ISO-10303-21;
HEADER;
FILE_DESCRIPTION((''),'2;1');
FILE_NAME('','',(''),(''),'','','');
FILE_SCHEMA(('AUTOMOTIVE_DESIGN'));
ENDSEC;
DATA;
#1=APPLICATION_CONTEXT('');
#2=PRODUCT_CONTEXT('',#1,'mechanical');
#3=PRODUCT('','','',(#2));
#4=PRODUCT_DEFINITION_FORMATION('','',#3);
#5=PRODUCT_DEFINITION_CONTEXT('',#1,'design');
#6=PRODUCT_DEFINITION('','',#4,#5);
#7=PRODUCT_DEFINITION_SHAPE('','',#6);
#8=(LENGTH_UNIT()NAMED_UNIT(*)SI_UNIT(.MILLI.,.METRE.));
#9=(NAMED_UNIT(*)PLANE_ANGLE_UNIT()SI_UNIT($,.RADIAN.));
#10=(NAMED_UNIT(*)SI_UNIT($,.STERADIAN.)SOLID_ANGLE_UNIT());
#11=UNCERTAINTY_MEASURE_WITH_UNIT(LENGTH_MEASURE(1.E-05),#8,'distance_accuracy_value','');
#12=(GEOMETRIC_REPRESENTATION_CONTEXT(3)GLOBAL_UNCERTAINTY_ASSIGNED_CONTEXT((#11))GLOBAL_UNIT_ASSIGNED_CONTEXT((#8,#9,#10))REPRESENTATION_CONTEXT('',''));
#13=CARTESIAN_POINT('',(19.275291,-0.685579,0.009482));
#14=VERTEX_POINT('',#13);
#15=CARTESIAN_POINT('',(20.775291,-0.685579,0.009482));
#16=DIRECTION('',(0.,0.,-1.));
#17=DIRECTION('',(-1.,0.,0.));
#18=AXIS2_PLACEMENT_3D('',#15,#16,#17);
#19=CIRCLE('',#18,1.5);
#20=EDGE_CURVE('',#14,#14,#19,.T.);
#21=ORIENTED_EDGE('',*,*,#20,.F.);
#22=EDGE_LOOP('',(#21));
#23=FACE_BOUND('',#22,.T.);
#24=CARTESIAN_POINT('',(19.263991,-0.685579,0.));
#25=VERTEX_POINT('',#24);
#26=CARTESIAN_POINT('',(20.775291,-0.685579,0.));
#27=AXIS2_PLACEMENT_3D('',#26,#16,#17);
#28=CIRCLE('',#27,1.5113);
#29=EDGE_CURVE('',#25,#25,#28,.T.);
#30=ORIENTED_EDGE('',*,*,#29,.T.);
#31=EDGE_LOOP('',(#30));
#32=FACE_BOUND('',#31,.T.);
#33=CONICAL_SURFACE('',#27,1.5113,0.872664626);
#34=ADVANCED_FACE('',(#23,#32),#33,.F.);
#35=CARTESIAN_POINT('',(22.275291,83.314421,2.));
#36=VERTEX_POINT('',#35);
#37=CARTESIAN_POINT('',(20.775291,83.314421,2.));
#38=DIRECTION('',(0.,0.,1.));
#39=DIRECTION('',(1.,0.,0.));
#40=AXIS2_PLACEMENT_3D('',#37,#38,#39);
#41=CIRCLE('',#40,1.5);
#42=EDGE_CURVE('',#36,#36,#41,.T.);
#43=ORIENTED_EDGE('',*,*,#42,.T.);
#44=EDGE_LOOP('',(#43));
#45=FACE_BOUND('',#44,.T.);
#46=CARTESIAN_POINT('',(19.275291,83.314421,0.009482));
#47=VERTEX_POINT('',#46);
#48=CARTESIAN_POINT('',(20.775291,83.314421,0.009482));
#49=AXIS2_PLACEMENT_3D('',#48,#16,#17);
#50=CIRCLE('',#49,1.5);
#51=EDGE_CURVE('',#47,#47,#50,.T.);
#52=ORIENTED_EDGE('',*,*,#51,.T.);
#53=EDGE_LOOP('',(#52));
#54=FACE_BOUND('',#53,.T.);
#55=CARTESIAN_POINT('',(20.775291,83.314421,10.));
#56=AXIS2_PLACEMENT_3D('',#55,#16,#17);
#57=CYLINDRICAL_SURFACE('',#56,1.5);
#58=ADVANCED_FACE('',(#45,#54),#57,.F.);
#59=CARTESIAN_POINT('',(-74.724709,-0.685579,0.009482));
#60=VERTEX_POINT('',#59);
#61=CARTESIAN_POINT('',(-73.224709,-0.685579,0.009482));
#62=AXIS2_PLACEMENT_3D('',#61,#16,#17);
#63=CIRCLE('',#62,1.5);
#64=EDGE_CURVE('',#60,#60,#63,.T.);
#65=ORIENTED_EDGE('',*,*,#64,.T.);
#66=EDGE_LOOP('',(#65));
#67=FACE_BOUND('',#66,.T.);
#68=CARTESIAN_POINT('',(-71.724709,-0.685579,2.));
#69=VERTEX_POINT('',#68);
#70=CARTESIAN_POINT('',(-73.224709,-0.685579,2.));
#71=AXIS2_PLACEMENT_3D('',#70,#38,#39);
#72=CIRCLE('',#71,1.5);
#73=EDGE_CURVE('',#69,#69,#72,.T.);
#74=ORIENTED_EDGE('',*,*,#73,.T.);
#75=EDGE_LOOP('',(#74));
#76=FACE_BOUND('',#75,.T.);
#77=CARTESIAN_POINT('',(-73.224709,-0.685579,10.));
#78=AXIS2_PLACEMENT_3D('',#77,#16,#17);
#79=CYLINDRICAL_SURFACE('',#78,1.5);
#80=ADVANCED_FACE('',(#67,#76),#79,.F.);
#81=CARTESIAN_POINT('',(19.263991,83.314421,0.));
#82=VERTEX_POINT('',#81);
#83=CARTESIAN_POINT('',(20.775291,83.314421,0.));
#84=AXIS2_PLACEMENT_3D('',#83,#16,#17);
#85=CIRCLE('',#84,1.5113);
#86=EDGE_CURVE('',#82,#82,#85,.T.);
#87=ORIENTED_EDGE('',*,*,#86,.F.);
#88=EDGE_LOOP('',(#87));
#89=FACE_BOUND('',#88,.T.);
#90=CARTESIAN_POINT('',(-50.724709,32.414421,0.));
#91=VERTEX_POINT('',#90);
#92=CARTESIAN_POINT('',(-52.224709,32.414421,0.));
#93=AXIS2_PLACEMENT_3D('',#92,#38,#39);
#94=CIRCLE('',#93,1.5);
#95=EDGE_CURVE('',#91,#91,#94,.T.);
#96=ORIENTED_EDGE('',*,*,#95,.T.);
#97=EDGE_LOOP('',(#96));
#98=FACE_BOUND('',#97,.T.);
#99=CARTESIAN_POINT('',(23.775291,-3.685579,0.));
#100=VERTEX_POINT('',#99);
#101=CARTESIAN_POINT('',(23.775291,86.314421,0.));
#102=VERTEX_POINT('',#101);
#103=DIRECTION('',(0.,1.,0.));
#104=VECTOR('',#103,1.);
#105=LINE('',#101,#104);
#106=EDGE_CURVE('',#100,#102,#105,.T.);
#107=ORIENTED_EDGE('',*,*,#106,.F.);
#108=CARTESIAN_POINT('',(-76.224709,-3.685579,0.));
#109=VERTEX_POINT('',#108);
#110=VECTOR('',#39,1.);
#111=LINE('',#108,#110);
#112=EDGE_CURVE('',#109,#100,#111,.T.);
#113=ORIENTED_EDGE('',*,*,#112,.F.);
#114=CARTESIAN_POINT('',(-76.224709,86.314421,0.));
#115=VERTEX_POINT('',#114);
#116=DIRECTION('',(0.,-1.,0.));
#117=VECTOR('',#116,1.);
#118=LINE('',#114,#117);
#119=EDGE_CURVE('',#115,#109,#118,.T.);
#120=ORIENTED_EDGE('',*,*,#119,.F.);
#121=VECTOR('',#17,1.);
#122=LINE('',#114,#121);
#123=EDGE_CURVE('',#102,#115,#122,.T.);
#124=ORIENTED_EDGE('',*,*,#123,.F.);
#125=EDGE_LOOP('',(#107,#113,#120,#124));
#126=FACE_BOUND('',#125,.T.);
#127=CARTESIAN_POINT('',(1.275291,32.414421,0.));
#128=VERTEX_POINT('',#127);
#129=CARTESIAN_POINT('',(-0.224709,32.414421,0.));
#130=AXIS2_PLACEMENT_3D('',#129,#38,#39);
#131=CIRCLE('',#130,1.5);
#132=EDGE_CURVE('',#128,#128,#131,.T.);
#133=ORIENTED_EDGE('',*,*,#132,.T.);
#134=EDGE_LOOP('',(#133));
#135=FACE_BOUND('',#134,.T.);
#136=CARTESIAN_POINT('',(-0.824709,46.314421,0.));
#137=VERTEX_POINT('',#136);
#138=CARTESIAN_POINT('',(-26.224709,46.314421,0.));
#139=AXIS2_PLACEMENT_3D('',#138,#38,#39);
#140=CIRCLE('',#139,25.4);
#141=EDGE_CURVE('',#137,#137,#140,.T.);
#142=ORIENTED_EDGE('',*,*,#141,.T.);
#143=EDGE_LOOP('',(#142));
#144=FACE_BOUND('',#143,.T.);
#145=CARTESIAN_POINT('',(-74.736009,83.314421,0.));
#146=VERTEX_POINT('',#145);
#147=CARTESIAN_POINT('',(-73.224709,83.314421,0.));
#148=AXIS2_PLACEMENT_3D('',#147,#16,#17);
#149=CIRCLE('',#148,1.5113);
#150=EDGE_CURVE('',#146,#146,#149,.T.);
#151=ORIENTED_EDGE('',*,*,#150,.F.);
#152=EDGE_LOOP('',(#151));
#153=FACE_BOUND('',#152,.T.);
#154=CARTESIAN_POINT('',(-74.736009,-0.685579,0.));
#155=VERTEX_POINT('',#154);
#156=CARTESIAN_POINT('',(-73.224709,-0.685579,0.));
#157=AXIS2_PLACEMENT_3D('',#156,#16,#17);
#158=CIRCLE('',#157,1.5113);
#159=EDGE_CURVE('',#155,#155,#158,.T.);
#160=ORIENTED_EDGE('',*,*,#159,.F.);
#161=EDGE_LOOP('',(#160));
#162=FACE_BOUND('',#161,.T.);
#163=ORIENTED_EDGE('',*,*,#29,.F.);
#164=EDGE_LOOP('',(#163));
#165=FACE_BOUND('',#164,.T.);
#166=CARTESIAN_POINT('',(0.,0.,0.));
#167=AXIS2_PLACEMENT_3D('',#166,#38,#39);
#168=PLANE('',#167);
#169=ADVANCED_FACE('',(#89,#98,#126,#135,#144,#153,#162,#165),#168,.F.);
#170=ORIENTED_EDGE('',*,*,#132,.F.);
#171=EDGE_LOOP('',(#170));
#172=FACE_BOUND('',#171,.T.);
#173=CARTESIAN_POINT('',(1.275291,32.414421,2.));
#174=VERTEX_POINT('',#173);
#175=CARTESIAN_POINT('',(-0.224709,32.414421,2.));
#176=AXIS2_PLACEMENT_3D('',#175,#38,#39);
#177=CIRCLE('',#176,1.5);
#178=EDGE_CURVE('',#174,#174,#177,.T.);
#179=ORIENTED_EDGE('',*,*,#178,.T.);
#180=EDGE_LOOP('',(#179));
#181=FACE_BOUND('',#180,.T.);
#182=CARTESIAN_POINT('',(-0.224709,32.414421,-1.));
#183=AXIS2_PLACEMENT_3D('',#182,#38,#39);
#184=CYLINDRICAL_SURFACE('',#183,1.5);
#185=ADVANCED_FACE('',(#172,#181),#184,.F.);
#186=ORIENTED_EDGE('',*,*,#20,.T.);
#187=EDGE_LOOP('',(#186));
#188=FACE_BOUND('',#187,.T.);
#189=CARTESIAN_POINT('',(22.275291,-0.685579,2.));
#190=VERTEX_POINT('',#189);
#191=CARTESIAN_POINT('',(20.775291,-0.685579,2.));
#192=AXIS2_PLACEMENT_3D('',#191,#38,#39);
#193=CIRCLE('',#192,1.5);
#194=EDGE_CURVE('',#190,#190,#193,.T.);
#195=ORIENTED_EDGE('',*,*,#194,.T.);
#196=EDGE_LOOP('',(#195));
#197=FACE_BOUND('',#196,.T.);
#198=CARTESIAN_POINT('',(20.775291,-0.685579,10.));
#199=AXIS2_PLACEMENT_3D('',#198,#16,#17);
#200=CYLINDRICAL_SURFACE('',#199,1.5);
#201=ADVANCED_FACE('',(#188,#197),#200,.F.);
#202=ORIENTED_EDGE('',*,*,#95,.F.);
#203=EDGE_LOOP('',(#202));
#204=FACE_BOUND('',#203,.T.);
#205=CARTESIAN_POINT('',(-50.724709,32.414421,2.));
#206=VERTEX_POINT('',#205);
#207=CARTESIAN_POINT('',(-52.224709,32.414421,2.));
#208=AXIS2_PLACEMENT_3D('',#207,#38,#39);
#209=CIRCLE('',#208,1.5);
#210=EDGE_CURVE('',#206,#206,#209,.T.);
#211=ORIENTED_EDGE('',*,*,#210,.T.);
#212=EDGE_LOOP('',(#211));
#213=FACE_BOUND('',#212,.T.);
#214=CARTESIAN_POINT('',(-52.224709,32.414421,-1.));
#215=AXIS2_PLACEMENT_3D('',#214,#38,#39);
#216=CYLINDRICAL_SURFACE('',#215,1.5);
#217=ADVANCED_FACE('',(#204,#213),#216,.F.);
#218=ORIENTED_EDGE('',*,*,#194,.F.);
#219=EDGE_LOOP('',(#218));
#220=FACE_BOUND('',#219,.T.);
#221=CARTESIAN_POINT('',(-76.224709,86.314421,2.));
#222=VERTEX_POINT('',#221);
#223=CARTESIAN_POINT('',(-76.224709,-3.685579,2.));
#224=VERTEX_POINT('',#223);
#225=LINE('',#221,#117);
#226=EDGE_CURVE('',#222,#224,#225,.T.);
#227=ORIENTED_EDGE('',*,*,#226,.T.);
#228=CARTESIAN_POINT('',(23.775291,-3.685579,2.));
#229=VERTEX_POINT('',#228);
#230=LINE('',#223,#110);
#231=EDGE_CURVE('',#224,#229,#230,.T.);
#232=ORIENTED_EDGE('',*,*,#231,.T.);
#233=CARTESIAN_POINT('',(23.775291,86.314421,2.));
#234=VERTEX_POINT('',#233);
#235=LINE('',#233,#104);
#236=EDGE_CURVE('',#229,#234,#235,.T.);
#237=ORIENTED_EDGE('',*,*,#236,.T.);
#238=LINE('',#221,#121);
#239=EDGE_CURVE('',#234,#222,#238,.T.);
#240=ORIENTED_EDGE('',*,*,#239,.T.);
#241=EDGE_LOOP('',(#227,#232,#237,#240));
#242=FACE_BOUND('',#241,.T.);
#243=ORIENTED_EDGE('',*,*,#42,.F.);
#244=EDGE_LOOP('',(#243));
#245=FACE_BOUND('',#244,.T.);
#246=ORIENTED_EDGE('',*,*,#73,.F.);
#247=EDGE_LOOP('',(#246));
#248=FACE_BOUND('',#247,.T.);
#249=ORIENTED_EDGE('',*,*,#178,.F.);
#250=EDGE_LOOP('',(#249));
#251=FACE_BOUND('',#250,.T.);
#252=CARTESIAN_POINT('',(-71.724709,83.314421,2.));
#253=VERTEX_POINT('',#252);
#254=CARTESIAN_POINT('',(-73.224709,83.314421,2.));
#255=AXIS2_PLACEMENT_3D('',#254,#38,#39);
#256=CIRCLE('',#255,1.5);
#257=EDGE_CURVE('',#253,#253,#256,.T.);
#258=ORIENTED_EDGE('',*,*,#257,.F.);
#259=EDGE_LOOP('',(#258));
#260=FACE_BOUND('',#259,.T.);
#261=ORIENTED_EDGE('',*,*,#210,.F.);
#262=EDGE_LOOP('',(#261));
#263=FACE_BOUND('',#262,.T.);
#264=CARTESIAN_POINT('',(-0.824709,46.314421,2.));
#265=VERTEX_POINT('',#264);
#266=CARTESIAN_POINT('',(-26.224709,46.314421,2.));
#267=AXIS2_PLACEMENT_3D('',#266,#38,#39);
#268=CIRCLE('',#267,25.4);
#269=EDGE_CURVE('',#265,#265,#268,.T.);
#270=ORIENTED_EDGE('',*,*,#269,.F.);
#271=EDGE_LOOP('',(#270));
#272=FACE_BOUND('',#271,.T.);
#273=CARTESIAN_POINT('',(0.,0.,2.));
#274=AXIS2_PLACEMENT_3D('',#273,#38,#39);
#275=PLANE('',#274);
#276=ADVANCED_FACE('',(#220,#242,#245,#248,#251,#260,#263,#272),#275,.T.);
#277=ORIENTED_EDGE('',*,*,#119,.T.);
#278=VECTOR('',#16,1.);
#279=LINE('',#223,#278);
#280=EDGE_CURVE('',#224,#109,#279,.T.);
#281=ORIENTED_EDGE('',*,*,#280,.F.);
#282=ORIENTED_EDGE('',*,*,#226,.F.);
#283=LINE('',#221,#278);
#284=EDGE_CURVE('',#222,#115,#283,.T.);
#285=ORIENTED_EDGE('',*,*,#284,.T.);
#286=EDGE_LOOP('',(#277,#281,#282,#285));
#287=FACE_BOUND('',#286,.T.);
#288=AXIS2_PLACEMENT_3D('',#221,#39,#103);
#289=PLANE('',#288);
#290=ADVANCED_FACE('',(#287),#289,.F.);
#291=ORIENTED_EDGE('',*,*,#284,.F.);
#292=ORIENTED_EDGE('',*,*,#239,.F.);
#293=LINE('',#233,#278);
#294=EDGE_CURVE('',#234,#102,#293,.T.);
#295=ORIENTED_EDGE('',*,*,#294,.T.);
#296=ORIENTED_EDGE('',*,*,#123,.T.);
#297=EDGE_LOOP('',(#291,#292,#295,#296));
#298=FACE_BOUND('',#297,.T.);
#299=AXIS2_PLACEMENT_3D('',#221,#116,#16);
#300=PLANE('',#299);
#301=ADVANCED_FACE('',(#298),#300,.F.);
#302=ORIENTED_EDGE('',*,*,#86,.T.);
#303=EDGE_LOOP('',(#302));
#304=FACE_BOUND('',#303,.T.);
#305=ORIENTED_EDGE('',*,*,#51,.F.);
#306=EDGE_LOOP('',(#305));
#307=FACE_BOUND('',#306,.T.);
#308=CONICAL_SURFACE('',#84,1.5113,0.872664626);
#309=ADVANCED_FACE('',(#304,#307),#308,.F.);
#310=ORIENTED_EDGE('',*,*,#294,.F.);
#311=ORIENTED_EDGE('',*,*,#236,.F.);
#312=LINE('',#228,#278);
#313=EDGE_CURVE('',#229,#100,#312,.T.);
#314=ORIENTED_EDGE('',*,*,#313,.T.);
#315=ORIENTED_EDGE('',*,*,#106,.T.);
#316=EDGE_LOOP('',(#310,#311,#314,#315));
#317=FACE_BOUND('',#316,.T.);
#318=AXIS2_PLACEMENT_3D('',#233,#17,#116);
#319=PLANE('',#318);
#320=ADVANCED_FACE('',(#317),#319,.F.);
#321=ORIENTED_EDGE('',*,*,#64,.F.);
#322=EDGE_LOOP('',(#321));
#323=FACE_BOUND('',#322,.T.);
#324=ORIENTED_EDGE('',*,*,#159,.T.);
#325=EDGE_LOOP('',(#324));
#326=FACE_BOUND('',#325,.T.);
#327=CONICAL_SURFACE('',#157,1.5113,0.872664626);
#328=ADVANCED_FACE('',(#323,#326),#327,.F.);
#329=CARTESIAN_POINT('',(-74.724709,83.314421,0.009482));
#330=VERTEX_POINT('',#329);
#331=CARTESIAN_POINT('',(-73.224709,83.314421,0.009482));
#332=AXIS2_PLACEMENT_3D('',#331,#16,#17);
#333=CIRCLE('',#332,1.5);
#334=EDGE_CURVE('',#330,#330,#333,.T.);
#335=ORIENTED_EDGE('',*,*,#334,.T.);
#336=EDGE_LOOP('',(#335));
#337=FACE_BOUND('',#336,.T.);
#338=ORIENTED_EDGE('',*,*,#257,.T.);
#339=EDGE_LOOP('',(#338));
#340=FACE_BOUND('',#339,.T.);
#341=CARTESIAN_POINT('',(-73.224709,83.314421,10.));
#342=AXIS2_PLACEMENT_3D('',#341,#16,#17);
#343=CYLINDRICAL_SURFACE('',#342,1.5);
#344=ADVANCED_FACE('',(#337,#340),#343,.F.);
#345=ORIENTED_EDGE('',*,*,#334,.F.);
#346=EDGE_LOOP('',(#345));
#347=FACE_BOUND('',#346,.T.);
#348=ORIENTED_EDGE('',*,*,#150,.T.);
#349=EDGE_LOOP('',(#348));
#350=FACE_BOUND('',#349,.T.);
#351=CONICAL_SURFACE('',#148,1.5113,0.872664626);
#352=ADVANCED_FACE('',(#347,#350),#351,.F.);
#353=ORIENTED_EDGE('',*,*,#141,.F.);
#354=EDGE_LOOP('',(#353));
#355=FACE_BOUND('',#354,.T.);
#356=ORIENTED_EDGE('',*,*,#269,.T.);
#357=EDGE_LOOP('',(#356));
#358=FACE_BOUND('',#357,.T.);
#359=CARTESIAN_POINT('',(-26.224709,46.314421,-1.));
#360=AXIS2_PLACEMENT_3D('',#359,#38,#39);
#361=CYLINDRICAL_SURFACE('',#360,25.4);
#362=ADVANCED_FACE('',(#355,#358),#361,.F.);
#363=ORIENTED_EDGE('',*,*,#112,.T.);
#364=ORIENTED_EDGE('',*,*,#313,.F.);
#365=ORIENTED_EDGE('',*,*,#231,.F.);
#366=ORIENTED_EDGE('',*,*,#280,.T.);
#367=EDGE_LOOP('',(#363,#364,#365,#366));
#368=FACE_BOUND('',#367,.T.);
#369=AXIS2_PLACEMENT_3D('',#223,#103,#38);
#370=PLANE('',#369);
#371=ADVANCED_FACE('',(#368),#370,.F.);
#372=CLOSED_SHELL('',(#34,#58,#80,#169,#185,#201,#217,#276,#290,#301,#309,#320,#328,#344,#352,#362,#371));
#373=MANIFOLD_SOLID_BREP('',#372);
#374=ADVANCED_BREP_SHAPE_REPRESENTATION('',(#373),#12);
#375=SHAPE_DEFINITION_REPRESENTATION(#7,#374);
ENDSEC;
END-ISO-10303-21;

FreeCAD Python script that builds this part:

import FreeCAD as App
import Part
import Sketcher
from FreeCAD import Vector


def add_polygon(sketch, points):
    """Adds a closed chain of lines whose ends are joined by coincident constraints."""
    first, n = sketch.GeometryCount, len(points)
    for a, b in zip(points, points[1:] + points[:1]):
        sketch.addGeometry(Part.LineSegment(App.Vector(*a, 0), App.Vector(*b, 0)), False)
    for i in range(n):
        sketch.addConstraint(Sketcher.Constraint("Coincident", first + i, 2, first + (i + 1) % n, 1))

doc = App.newDocument("Part")
body = doc.addObject("PartDesign::Body", "Body")

sketch1 = body.newObject("Sketcher::SketchObject", "Sketch")
sketch1.AttachmentSupport = (doc.getObject("XY_Plane"), [""])
sketch1.MapMode = "FlatFace"
add_polygon(sketch1, [(-76, 86), (-76, -4), (24, -4), (24, 86)])
sketch1.addConstraint([
    Sketcher.Constraint("Vertical", 0),
    Sketcher.Constraint("Horizontal", 1),
    Sketcher.Constraint("Vertical", 2),
    Sketcher.Constraint("Horizontal", 3),
    Sketcher.Constraint("DistanceX", 1, 1, 1, 2, 100.0),
    Sketcher.Constraint("DistanceY", 0, 2, 0, 1, 90.0),
    Sketcher.Constraint("DistanceX", 0, 2, -1, 1, 76.224709),
    Sketcher.Constraint("DistanceY", 0, 2, -1, 1, 3.685579),
])
pad1 = body.newObject("PartDesign::Pad", "Pad")
pad1.Profile = sketch1
pad1.Length = 2

sketch2 = body.newObject("Sketcher::SketchObject", "Sketch001")
sketch2.AttachmentSupport = (doc.getObject("XY_Plane"), [""])
sketch2.MapMode = "FlatFace"
sketch2.AttachmentOffset = App.Placement(Vector(0, 0, 2), App.Rotation())
sketch2.addGeometry(Part.Circle(Vector(-26, 46, 0), Vector(0, 0, 1), 25), False)
sketch2.addConstraint([
    Sketcher.Constraint("Diameter", 0, 50.8),
    Sketcher.Constraint("DistanceX", 0, 3, -1, 1, 26.224709),
    Sketcher.Constraint("DistanceY", -1, 1, 0, 3, 46.314421),
])
pocket1 = body.newObject("PartDesign::Pocket", "Pocket")
pocket1.Profile = sketch2
pocket1.Length = 3

sketch3 = body.newObject("Sketcher::SketchObject", "Sketch002")
sketch3.AttachmentSupport = (doc.getObject("XY_Plane"), [""])
sketch3.MapMode = "FlatFace"
sketch3.AttachmentOffset = App.Placement(Vector(0, 0, 2), App.Rotation())
sketch3.addGeometry([
    Part.Circle(Vector(-52.2, 32.4, 0), Vector(0, 0, 1), 1.5),
    Part.Circle(Vector(-0.2, 32.4, 0), Vector(0, 0, 1), 1.5),
], False)
sketch3.addConstraint([
    Sketcher.Constraint("Equal", 0, 1),
    Sketcher.Constraint("Horizontal", 0, 3, 1, 3),
    Sketcher.Constraint("Diameter", 0, 3.0),
    Sketcher.Constraint("DistanceX", 0, 3, 1, 3, 52.0),
    Sketcher.Constraint("DistanceX", 0, 3, -1, 1, 52.224709),
    Sketcher.Constraint("DistanceY", -1, 1, 0, 3, 32.414421),
])
pocket2 = body.newObject("PartDesign::Pocket", "Pocket001")
pocket2.Profile = sketch3
pocket2.Length = 3

sketch4 = body.newObject("Sketcher::SketchObject", "Sketch003")
sketch4.AttachmentSupport = (doc.getObject("XY_Plane"), [""])
sketch4.MapMode = "FlatFace"
sketch4.addGeometry([
    Part.Circle(Vector(20.8, 83.3, 0), Vector(0, 0, 1), 1.5),
    Part.Circle(Vector(-73.2, 83.3, 0), Vector(0, 0, 1), 1.5),
    Part.Circle(Vector(-73.2, -0.7, 0), Vector(0, 0, 1), 1.5),
    Part.Circle(Vector(20.8, -0.7, 0), Vector(0, 0, 1), 1.5),
], False)
sketch4.addConstraint([
    Sketcher.Constraint("Equal", 0, 1),
    Sketcher.Constraint("Equal", 1, 2),
    Sketcher.Constraint("Equal", 2, 3),
    Sketcher.Constraint("Horizontal", 0, 3, 1, 3),
    Sketcher.Constraint("Horizontal", 2, 3, 3, 3),
    Sketcher.Constraint("Vertical", 1, 3, 2, 3),
    Sketcher.Constraint("Vertical", 0, 3, 3, 3),
    Sketcher.Constraint("Diameter", 0, 3.0),
    Sketcher.Constraint("DistanceX", 1, 3, 0, 3, 94.0),
    Sketcher.Constraint("DistanceY", 2, 3, 1, 3, 84.0),
    Sketcher.Constraint("DistanceX", -1, 1, 0, 3, 20.775291),
    Sketcher.Constraint("DistanceY", -1, 1, 0, 3, 83.314421),
])
pocket3 = body.newObject("PartDesign::Pocket", "Pocket002")
pocket3.Profile = sketch4
pocket3.Length = 10
pocket3.Reversed = True

sketch5 = body.newObject("Sketcher::SketchObject", "Sketch004")
sketch5.AttachmentSupport = (doc.getObject("XY_Plane"), [""])
sketch5.MapMode = "FlatFace"
sketch5.addGeometry([
    Part.Circle(Vector(20.8, 83.3, 0), Vector(0, 0, 1), 0.9),
    Part.Circle(Vector(-73.2, 83.3, 0), Vector(0, 0, 1), 0.9),
    Part.Circle(Vector(-73.2, -0.7, 0), Vector(0, 0, 1), 0.9),
    Part.Circle(Vector(20.8, -0.7, 0), Vector(0, 0, 1), 0.9),
], False)
sketch5.addConstraint([
    Sketcher.Constraint("Equal", 0, 1),
    Sketcher.Constraint("Equal", 1, 2),
    Sketcher.Constraint("Equal", 2, 3),
    Sketcher.Constraint("Horizontal", 0, 3, 1, 3),
    Sketcher.Constraint("Horizontal", 2, 3, 3, 3),
    Sketcher.Constraint("Vertical", 1, 3, 2, 3),
    Sketcher.Constraint("Vertical", 0, 3, 3, 3),
    Sketcher.Constraint("Diameter", 0, 1.778),
    Sketcher.Constraint("DistanceX", 1, 3, 0, 3, 94.0),
    Sketcher.Constraint("DistanceY", 2, 3, 1, 3, 84.0),
    Sketcher.Constraint("DistanceX", -1, 1, 0, 3, 20.775291),
    Sketcher.Constraint("DistanceY", -1, 1, 0, 3, 83.314421),
])
doc.recompute()
hole = body.newObject("PartDesign::Hole", "Hole")
hole.Profile = sketch5
hole.ThreadType = "None"
hole.Diameter = 1.778
hole.DepthType = "ThroughAll"
hole.HoleCutType = "Countersink"
hole.HoleCutDiameter = 3.0226
hole.HoleCutCountersinkAngle = 100
hole.Reversed = True

doc.recompute()
